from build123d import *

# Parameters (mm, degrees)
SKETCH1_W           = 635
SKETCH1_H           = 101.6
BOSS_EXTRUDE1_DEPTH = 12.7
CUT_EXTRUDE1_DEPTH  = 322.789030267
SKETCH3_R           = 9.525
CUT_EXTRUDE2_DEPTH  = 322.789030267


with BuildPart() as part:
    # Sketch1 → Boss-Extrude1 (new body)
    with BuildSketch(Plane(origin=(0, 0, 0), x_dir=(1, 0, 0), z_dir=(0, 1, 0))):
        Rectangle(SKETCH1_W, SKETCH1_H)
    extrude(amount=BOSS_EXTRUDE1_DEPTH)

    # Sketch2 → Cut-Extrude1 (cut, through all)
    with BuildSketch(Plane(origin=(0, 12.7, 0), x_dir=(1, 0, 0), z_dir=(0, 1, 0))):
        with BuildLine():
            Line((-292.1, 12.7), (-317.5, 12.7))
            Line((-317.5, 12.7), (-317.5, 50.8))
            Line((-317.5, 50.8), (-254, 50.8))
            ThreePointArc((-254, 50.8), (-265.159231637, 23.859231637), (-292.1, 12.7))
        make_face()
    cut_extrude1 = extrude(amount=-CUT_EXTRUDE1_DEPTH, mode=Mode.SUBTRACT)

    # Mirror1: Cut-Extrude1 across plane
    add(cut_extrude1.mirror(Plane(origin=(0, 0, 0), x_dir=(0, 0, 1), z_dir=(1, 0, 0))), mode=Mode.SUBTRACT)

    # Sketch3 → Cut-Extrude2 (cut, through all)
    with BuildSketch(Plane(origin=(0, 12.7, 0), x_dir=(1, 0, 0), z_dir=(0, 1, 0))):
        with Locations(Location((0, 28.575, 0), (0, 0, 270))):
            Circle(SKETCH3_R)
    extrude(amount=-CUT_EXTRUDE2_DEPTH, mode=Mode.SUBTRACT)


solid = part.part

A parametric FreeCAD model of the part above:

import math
import FreeCAD as App
import Part
import Sketcher

V = App.Vector
Q = App.Units.Quantity

doc = App.newDocument("Part")
body = doc.addObject("PartDesign::Body", "Body")

sketch1 = doc.addObject("Sketcher::SketchObject", "Sketch")
body.addObject(sketch1)
sketch1.AttachmentSupport = (doc.XZ_Plane, [""])
sketch1.MapMode = "FlatFace"
sketch1.addGeometry([
    Part.LineSegment(V(-318, -51, 0), V(-318, 51, 0)),
    Part.LineSegment(V(-318, 51, 0), V(318, 51, 0)),
    Part.LineSegment(V(318, 51, 0), V(318, -51, 0)),
    Part.LineSegment(V(318, -51, 0), V(-318, -51, 0)),
], False)
sketch1.addConstraint([
    Sketcher.Constraint("Coincident", 0, 2, 1, 1),
    Sketcher.Constraint("Coincident", 1, 2, 2, 1),
    Sketcher.Constraint("Coincident", 2, 2, 3, 1),
    Sketcher.Constraint("Coincident", 3, 2, 0, 1),
    Sketcher.Constraint("Vertical", 0),
    Sketcher.Constraint("Horizontal", 1),
    Sketcher.Constraint("Vertical", 2),
    Sketcher.Constraint("Horizontal", 3),
    Sketcher.Constraint("Symmetric", 0, 2, 2, 2, -1, 1),
    Sketcher.Constraint("DistanceX", 1, 1, 1, 2, Q("25 in")),
    Sketcher.Constraint("DistanceY", 0, 1, 0, 2, Q("4 in")),
])
pad1 = doc.addObject("PartDesign::Pad", "Pad")
body.addObject(pad1)
pad1.Profile = sketch1
pad1.Length = Q("0.5 in")
pad1.Reversed = True

sketch2 = doc.addObject("Sketcher::SketchObject", "Sketch001")
body.addObject(sketch2)
sketch2.AttachmentSupport = (doc.XZ_Plane, [""])
sketch2.MapMode = "FlatFace"
sketch2.AttachmentOffset = App.Placement(V(0, 0, -0.5 * 25.4), App.Rotation())
sketch2.addGeometry([
    Part.LineSegment(V(-318, -13, 0), V(-292, -13, 0)),
    Part.ArcOfCircle(Part.Circle(V(-292, -51, 0), V(0, 0, 1), 38), math.radians(0), math.radians(90)),
    Part.LineSegment(V(-254, -51, 0), V(-318, -51, 0)),
    Part.LineSegment(V(-318, -51, 0), V(-318, -13, 0)),
], False)
sketch2.addConstraint([
    Sketcher.Constraint("Tangent", 0, 2, 1, 2),
    Sketcher.Constraint("Coincident", 1, 1, 2, 1),
    Sketcher.Constraint("Coincident", 2, 2, 3, 1),
    Sketcher.Constraint("Coincident", 3, 2, 0, 1),
    Sketcher.Constraint("Horizontal", 0),
    Sketcher.Constraint("Horizontal", 2),
    Sketcher.Constraint("Vertical", 3),
    Sketcher.Constraint("Radius", 1, Q("1.5 in")),
    Sketcher.Constraint("DistanceX", 0, 1, 0, 2, Q("1 in")),
    Sketcher.Constraint("DistanceY", 3, 1, 3, 2, Q("1.5 in")),
    Sketcher.Constraint("DistanceY", 1, 3, -1, 1, Q("2 in")),
    Sketcher.Constraint("DistanceX", 1, 1, -1, 1, Q("10 in")),
])
pocket1 = doc.addObject("PartDesign::Pocket", "Pocket")
body.addObject(pocket1)
pocket1.Profile = sketch2
pocket1.Type = "ThroughAll"
pocket1.Reversed = True
doc.recompute()

mirrored = doc.addObject("PartDesign::Mirrored", "Mirrored")
body.addObject(mirrored)
mirrored.Originals = [pocket1]
mirrored.MirrorPlane = (doc.YZ_Plane, [""])
body.Tip = mirrored

sketch3 = doc.addObject("Sketcher::SketchObject", "Sketch002")
body.addObject(sketch3)
sketch3.AttachmentSupport = (doc.XZ_Plane, [""])
sketch3.MapMode = "FlatFace"
sketch3.AttachmentOffset = App.Placement(V(0, 0, -0.5 * 25.4), App.Rotation())
sketch3.addGeometry(Part.Circle(V(0, -29, 0), V(0, 0, 1), 10), False)
sketch3.addConstraint([
    Sketcher.Constraint("PointOnObject", 0, 3, -2),
    Sketcher.Constraint("Diameter", 0, Q("0.75 in")),
    Sketcher.Constraint("DistanceY", 0, 3, -1, 1, Q("1.125 in")),
])
pocket2 = doc.addObject("PartDesign::Pocket", "Pocket001")
body.addObject(pocket2)
pocket2.Profile = sketch3
pocket2.Type = "ThroughAll"
pocket2.Reversed = True

doc.recompute()
